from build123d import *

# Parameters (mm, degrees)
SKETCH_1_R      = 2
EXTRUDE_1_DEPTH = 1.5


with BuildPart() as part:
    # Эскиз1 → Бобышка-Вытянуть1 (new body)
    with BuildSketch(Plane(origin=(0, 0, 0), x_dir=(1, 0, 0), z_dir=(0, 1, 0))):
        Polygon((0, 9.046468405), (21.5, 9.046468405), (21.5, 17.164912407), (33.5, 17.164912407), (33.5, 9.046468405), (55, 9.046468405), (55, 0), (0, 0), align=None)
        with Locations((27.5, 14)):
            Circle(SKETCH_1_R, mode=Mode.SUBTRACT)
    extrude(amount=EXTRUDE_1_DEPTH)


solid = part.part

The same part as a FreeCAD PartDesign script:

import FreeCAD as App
import Part
import Sketcher

V = App.Vector


def add_polygon(sketch, points):
    """Adds a closed chain of lines whose ends are joined by coincident constraints."""
    first, n = sketch.GeometryCount, len(points)
    for a, b in zip(points, points[1:] + points[:1]):
        sketch.addGeometry(Part.LineSegment(App.Vector(*a, 0), App.Vector(*b, 0)), False)
    for i in range(n):
        sketch.addConstraint(Sketcher.Constraint("Coincident", first + i, 2, first + (i + 1) % n, 1))

doc = App.newDocument("Part")
body = doc.addObject("PartDesign::Body", "Body")

sketch1 = body.newObject("Sketcher::SketchObject", "Sketch")
sketch1.AttachmentSupport = (doc.getObject("XZ_Plane"), [""])
sketch1.MapMode = "FlatFace"
add_polygon(sketch1, [(21.5, -9), (0, -9), (0, 0), (55, 0), (55, -9), (33.5, -9), (33.5, -17.2), (21.5, -17.2)])
sketch1.addGeometry(Part.Circle(V(27.5, -14, 0), V(0, 0, 1), 2), False)
sketch1.addConstraint([
    Sketcher.Constraint("Horizontal", 0),
    Sketcher.Constraint("Vertical", 1),
    Sketcher.Constraint("Horizontal", 2),
    Sketcher.Constraint("Vertical", 3),
    Sketcher.Constraint("Horizontal", 4),
    Sketcher.Constraint("Vertical", 5),
    Sketcher.Constraint("Horizontal", 6),
    Sketcher.Constraint("Vertical", 7),
    Sketcher.Constraint("Coincident", 1, 2, -1, 1),
    Sketcher.Constraint("Horizontal", 0, 2, 3, 2),
    Sketcher.Constraint("Equal", 0, 4),
    Sketcher.Constraint("Diameter", 8, 4.0),
    Sketcher.Constraint("DistanceX", 2, 1, 2, 2, 55.0),
    Sketcher.Constraint("DistanceX", 6, 2, 6, 1, 12.0),
    Sketcher.Constraint("DistanceY", 8, 3, -1, 1, 14.0),
    Sketcher.Constraint("DistanceX", 8, 3, 4, 2, 6.0),
    Sketcher.Constraint("DistanceY", 1, 1, 1, 2, 9.046468),
    Sketcher.Constraint("DistanceY", 5, 2, 5, 1, 8.118444),
])
pad1 = body.newObject("PartDesign::Pad", "Pad")
pad1.Profile = sketch1
pad1.Length = 1.5
pad1.Reversed = True

doc.recompute()
